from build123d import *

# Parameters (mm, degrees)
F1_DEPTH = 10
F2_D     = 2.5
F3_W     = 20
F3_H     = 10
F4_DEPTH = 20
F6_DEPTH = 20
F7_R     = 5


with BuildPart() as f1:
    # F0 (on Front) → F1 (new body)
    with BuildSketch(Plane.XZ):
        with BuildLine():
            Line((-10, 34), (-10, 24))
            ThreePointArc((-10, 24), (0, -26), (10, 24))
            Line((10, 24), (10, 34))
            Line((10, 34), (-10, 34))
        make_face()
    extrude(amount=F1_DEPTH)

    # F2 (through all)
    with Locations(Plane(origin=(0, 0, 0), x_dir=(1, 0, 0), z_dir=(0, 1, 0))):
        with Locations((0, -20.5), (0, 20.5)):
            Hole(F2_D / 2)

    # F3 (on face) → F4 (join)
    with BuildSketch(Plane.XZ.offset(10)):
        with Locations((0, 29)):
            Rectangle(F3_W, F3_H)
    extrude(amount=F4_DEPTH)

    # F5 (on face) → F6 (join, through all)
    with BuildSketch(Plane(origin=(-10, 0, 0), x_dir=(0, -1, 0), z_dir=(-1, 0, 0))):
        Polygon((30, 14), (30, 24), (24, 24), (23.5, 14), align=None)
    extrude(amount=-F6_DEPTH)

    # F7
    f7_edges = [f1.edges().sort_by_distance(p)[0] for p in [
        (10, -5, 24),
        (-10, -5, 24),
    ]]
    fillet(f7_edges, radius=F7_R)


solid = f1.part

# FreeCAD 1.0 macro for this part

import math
import FreeCAD as App
import Part
import Sketcher


def edges_at(feature, points):
    """Names of the edges that pass closest to the given points."""
    edges = feature.Shape.Edges
    near = lambda p: min(range(len(edges)), key=lambda i: edges[i].distToShape(Part.Vertex(*p))[0])
    return sorted({f"Edge{near(p) + 1}" for p in points})

doc = App.newDocument("Part")
body = doc.addObject("PartDesign::Body", "Body")

# Sketch on XZ plane
sketch1 = body.newObject("Sketcher::SketchObject", "Sketch")
sketch1.AttachmentSupport = (doc.getObject("XZ_Plane"), [""])
sketch1.MapMode = "FlatFace"
sketch1.addGeometry([
    Part.LineSegment(App.Vector(-10, 34, 0), App.Vector(-10, 24, 0)),
    Part.ArcOfCircle(Part.Circle(App.Vector(0, 0, 0), App.Vector(0, 0, 1), 26), math.radians(112.619865), math.radians(427.380135)),
    Part.LineSegment(App.Vector(10, 24, 0), App.Vector(10, 34, 0)),
    Part.LineSegment(App.Vector(10, 34, 0), App.Vector(-10, 34, 0)),
], False)
sketch1.addConstraint([
    Sketcher.Constraint("Coincident", 0, 2, 1, 1),
    Sketcher.Constraint("Coincident", 1, 2, 2, 1),
    Sketcher.Constraint("Coincident", 2, 2, 3, 1),
    Sketcher.Constraint("Coincident", 3, 2, 0, 1),
    Sketcher.Constraint("Vertical", 0),
    Sketcher.Constraint("Vertical", 2),
    Sketcher.Constraint("Horizontal", 3),
    Sketcher.Constraint("Coincident", 1, 3, -1, 1),
    Sketcher.Constraint("Horizontal", 0, 2, 1, 2),
    Sketcher.Constraint("Radius", 1, 26.0),
    Sketcher.Constraint("DistanceX", 3, 2, 3, 1, 20.0),
    Sketcher.Constraint("DistanceY", 0, 2, 0, 1, 10.0),
])
pad1 = body.newObject("PartDesign::Pad", "Pad")
pad1.Profile = sketch1
pad1.Length = 10

# Sketch on XZ plane
sketch2 = body.newObject("Sketcher::SketchObject", "Sketch001")
sketch2.AttachmentSupport = (doc.getObject("XZ_Plane"), [""])
sketch2.MapMode = "FlatFace"
sketch2.addGeometry([
    Part.Circle(App.Vector(0, 20.5, 0), App.Vector(0, 0, 1), 1.25),
    Part.Circle(App.Vector(0, -20.5, 0), App.Vector(0, 0, 1), 1.25),
], False)
sketch2.addConstraint([
    Sketcher.Constraint("Equal", 0, 1),
    Sketcher.Constraint("Symmetric", 0, 3, 1, 3, -1, 1),
    Sketcher.Constraint("PointOnObject", 0, 3, -2),
    Sketcher.Constraint("Diameter", 0, 2.5),
    Sketcher.Constraint("DistanceY", 1, 3, 0, 3, 41.0),
])
doc.recompute()
hole = body.newObject("PartDesign::Hole", "Hole")
hole.Profile = sketch2
hole.ThreadType = "None"
hole.Diameter = 2.5
hole.DepthType = "ThroughAll"
hole.Reversed = True

# Sketch on XZ plane
sketch3 = body.newObject("Sketcher::SketchObject", "Sketch002")
sketch3.AttachmentSupport = (doc.getObject("XZ_Plane"), [""])
sketch3.MapMode = "FlatFace"
sketch3.AttachmentOffset = App.Placement(App.Vector(0, 0, 10), App.Rotation())
sketch3.addGeometry([
    Part.LineSegment(App.Vector(-10, 34, 0), App.Vector(-10, 24, 0)),
    Part.LineSegment(App.Vector(-10, 24, 0), App.Vector(10, 24, 0)),
    Part.LineSegment(App.Vector(10, 24, 0), App.Vector(10, 34, 0)),
    Part.LineSegment(App.Vector(10, 34, 0), App.Vector(-10, 34, 0)),
], False)
sketch3.addConstraint([
    Sketcher.Constraint("Coincident", 0, 2, 1, 1),
    Sketcher.Constraint("Coincident", 1, 2, 2, 1),
    Sketcher.Constraint("Coincident", 2, 2, 3, 1),
    Sketcher.Constraint("Coincident", 3, 2, 0, 1),
    Sketcher.Constraint("Vertical", 0),
    Sketcher.Constraint("Horizontal", 1),
    Sketcher.Constraint("Vertical", 2),
    Sketcher.Constraint("Horizontal", 3),
    Sketcher.Constraint("DistanceX", 1, 1, 1, 2, 20.0),
    Sketcher.Constraint("DistanceY", 0, 2, 0, 1, 10.0),
    Sketcher.Constraint("DistanceX", 0, 2, -1, 1, 10.0),
    Sketcher.Constraint("DistanceY", -1, 1, 0, 2, 24.0),
])
pad2 = body.newObject("PartDesign::Pad", "Pad001")
pad2.Profile = sketch3
pad2.Length = 20

# Sketch on YZ plane
sketch4 = body.newObject("Sketcher::SketchObject", "Sketch003")
sketch4.AttachmentSupport = (doc.getObject("YZ_Plane"), [""])
sketch4.MapMode = "FlatFace"
sketch4.AttachmentOffset = App.Placement(App.Vector(0, 0, -10), App.Rotation())
sketch4.addGeometry([
    Part.LineSegment(App.Vector(-30, 14, 0), App.Vector(-30, 24, 0)),
    Part.LineSegment(App.Vector(-30, 24, 0), App.Vector(-24, 24, 0)),
    Part.LineSegment(App.Vector(-24, 24, 0), App.Vector(-23.5, 14, 0)),
    Part.LineSegment(App.Vector(-23.5, 14, 0), App.Vector(-30, 14, 0)),
], False)
sketch4.addConstraint([
    Sketcher.Constraint("Coincident", 0, 2, 1, 1),
    Sketcher.Constraint("Coincident", 1, 2, 2, 1),
    Sketcher.Constraint("Coincident", 2, 2, 3, 1),
    Sketcher.Constraint("Coincident", 3, 2, 0, 1),
    Sketcher.Constraint("Vertical", 0),
    Sketcher.Constraint("Horizontal", 1),
    Sketcher.Constraint("Horizontal", 3),
    Sketcher.Constraint("DistanceX", 1, 1, 1, 2, 6.0),
    Sketcher.Constraint("DistanceY", 0, 1, 0, 2, 10.0),
    Sketcher.Constraint("DistanceX", 3, 2, 3, 1, 6.5),
    Sketcher.Constraint("DistanceX", 0, 2, -1, 1, 30.0),
    Sketcher.Constraint("DistanceY", -1, 1, 0, 2, 24.0),
])
pad3 = body.newObject("PartDesign::Pad", "Pad002")
pad3.Profile = sketch4
pad3.Length = 20
doc.recompute()

fillet = body.newObject("PartDesign::Fillet", "Fillet")
fillet.Base = (pad3, edges_at(pad3, [(10, -5, 24), (-10, -5, 24)]))
fillet.Radius = 5

doc.recompute()
